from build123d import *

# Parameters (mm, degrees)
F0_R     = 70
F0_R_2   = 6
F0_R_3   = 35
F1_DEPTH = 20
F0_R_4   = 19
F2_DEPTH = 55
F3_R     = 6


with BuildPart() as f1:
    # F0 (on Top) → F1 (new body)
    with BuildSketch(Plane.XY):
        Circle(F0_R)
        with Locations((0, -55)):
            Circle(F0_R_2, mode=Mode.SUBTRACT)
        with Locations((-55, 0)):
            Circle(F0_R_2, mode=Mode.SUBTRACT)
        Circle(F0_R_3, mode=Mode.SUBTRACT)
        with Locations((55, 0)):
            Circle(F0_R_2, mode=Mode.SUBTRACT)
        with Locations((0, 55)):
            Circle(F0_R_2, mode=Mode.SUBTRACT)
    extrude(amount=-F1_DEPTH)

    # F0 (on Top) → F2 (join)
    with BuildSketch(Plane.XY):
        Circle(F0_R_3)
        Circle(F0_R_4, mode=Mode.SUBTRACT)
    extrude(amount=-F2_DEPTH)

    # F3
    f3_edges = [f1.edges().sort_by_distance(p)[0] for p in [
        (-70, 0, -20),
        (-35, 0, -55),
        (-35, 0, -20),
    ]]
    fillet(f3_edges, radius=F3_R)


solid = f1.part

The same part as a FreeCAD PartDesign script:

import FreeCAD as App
import Part
import Sketcher

V = App.Vector


def edges_at(feature, points):
    """Names of the edges that pass closest to the given points."""
    edges = feature.Shape.Edges
    near = lambda p: min(range(len(edges)), key=lambda i: edges[i].distToShape(Part.Vertex(*p))[0])
    return sorted({f"Edge{near(p) + 1}" for p in points})

doc = App.newDocument("Part")
body = doc.addObject("PartDesign::Body", "Body")

# Sketch on XY plane
sketch1 = doc.addObject("Sketcher::SketchObject", "Sketch")
body.addObject(sketch1)
sketch1.AttachmentSupport = (doc.XY_Plane, [""])
sketch1.MapMode = "FlatFace"
sketch1.addGeometry([
    Part.Circle(V(0, 0, 0), V(0, 0, 1), 70),  # 0
    Part.Circle(V(0, -55, 0), V(0, 0, 1), 6),  # 1
    Part.Circle(V(-55, 0, 0), V(0, 0, 1), 6),  # 2
    Part.Circle(V(0, 0, 0), V(0, 0, 1), 35),  # 3
    Part.Circle(V(55, 0, 0), V(0, 0, 1), 6),  # 4
    Part.Circle(V(0, 55, 0), V(0, 0, 1), 6),  # 5
], False)
sketch1.addConstraint([
    Sketcher.Constraint("Coincident", 0, 3, -1, 1),
    Sketcher.Constraint("Coincident", 3, 3, -1, 1),
    Sketcher.Constraint("Equal", 1, 2),
    Sketcher.Constraint("Equal", 2, 4),
    Sketcher.Constraint("Equal", 4, 5),
    Sketcher.Constraint("Symmetric", 2, 3, 4, 3, -1, 1),
    Sketcher.Constraint("Symmetric", 1, 3, 5, 3, -1, 1),
    Sketcher.Constraint("PointOnObject", 1, 3, -2),
    Sketcher.Constraint("PointOnObject", 2, 3, -1),
    Sketcher.Constraint("Diameter", 0, 140.0),
    Sketcher.Constraint("Diameter", 1, 12.0),
    Sketcher.Constraint("Diameter", 3, 70.0),
    Sketcher.Constraint("DistanceY", 1, 3, -1, 1, 55.0),
    Sketcher.Constraint("DistanceX", 2, 3, -1, 1, 55.0),
])
pad1 = doc.addObject("PartDesign::Pad", "Pad")
body.addObject(pad1)
pad1.Profile = sketch1
pad1.Length = 20
pad1.Reversed = True

# Sketch on XY plane
sketch2 = doc.addObject("Sketcher::SketchObject", "Sketch001")
body.addObject(sketch2)
sketch2.AttachmentSupport = (doc.XY_Plane, [""])
sketch2.MapMode = "FlatFace"
sketch2.addGeometry([
    Part.Circle(V(0, 0, 0), V(0, 0, 1), 35),
    Part.Circle(V(0, 0, 0), V(0, 0, 1), 19),
], False)
sketch2.addConstraint([
    Sketcher.Constraint("Coincident", 0, 3, -1, 1),
    Sketcher.Constraint("Coincident", 1, 3, -1, 1),
    Sketcher.Constraint("Diameter", 0, 70.0),
    Sketcher.Constraint("Diameter", 1, 38.0),
])
pad2 = doc.addObject("PartDesign::Pad", "Pad001")
body.addObject(pad2)
pad2.Profile = sketch2
pad2.Length = 55
pad2.Reversed = True
doc.recompute()

fillet = doc.addObject("PartDesign::Fillet", "Fillet")
body.addObject(fillet)
fillet.Base = (pad2, edges_at(pad2, [(-70, 0, -20), (-35, 0, -55), (-35, 0, -20)]))
fillet.Radius = 6

doc.recompute()
